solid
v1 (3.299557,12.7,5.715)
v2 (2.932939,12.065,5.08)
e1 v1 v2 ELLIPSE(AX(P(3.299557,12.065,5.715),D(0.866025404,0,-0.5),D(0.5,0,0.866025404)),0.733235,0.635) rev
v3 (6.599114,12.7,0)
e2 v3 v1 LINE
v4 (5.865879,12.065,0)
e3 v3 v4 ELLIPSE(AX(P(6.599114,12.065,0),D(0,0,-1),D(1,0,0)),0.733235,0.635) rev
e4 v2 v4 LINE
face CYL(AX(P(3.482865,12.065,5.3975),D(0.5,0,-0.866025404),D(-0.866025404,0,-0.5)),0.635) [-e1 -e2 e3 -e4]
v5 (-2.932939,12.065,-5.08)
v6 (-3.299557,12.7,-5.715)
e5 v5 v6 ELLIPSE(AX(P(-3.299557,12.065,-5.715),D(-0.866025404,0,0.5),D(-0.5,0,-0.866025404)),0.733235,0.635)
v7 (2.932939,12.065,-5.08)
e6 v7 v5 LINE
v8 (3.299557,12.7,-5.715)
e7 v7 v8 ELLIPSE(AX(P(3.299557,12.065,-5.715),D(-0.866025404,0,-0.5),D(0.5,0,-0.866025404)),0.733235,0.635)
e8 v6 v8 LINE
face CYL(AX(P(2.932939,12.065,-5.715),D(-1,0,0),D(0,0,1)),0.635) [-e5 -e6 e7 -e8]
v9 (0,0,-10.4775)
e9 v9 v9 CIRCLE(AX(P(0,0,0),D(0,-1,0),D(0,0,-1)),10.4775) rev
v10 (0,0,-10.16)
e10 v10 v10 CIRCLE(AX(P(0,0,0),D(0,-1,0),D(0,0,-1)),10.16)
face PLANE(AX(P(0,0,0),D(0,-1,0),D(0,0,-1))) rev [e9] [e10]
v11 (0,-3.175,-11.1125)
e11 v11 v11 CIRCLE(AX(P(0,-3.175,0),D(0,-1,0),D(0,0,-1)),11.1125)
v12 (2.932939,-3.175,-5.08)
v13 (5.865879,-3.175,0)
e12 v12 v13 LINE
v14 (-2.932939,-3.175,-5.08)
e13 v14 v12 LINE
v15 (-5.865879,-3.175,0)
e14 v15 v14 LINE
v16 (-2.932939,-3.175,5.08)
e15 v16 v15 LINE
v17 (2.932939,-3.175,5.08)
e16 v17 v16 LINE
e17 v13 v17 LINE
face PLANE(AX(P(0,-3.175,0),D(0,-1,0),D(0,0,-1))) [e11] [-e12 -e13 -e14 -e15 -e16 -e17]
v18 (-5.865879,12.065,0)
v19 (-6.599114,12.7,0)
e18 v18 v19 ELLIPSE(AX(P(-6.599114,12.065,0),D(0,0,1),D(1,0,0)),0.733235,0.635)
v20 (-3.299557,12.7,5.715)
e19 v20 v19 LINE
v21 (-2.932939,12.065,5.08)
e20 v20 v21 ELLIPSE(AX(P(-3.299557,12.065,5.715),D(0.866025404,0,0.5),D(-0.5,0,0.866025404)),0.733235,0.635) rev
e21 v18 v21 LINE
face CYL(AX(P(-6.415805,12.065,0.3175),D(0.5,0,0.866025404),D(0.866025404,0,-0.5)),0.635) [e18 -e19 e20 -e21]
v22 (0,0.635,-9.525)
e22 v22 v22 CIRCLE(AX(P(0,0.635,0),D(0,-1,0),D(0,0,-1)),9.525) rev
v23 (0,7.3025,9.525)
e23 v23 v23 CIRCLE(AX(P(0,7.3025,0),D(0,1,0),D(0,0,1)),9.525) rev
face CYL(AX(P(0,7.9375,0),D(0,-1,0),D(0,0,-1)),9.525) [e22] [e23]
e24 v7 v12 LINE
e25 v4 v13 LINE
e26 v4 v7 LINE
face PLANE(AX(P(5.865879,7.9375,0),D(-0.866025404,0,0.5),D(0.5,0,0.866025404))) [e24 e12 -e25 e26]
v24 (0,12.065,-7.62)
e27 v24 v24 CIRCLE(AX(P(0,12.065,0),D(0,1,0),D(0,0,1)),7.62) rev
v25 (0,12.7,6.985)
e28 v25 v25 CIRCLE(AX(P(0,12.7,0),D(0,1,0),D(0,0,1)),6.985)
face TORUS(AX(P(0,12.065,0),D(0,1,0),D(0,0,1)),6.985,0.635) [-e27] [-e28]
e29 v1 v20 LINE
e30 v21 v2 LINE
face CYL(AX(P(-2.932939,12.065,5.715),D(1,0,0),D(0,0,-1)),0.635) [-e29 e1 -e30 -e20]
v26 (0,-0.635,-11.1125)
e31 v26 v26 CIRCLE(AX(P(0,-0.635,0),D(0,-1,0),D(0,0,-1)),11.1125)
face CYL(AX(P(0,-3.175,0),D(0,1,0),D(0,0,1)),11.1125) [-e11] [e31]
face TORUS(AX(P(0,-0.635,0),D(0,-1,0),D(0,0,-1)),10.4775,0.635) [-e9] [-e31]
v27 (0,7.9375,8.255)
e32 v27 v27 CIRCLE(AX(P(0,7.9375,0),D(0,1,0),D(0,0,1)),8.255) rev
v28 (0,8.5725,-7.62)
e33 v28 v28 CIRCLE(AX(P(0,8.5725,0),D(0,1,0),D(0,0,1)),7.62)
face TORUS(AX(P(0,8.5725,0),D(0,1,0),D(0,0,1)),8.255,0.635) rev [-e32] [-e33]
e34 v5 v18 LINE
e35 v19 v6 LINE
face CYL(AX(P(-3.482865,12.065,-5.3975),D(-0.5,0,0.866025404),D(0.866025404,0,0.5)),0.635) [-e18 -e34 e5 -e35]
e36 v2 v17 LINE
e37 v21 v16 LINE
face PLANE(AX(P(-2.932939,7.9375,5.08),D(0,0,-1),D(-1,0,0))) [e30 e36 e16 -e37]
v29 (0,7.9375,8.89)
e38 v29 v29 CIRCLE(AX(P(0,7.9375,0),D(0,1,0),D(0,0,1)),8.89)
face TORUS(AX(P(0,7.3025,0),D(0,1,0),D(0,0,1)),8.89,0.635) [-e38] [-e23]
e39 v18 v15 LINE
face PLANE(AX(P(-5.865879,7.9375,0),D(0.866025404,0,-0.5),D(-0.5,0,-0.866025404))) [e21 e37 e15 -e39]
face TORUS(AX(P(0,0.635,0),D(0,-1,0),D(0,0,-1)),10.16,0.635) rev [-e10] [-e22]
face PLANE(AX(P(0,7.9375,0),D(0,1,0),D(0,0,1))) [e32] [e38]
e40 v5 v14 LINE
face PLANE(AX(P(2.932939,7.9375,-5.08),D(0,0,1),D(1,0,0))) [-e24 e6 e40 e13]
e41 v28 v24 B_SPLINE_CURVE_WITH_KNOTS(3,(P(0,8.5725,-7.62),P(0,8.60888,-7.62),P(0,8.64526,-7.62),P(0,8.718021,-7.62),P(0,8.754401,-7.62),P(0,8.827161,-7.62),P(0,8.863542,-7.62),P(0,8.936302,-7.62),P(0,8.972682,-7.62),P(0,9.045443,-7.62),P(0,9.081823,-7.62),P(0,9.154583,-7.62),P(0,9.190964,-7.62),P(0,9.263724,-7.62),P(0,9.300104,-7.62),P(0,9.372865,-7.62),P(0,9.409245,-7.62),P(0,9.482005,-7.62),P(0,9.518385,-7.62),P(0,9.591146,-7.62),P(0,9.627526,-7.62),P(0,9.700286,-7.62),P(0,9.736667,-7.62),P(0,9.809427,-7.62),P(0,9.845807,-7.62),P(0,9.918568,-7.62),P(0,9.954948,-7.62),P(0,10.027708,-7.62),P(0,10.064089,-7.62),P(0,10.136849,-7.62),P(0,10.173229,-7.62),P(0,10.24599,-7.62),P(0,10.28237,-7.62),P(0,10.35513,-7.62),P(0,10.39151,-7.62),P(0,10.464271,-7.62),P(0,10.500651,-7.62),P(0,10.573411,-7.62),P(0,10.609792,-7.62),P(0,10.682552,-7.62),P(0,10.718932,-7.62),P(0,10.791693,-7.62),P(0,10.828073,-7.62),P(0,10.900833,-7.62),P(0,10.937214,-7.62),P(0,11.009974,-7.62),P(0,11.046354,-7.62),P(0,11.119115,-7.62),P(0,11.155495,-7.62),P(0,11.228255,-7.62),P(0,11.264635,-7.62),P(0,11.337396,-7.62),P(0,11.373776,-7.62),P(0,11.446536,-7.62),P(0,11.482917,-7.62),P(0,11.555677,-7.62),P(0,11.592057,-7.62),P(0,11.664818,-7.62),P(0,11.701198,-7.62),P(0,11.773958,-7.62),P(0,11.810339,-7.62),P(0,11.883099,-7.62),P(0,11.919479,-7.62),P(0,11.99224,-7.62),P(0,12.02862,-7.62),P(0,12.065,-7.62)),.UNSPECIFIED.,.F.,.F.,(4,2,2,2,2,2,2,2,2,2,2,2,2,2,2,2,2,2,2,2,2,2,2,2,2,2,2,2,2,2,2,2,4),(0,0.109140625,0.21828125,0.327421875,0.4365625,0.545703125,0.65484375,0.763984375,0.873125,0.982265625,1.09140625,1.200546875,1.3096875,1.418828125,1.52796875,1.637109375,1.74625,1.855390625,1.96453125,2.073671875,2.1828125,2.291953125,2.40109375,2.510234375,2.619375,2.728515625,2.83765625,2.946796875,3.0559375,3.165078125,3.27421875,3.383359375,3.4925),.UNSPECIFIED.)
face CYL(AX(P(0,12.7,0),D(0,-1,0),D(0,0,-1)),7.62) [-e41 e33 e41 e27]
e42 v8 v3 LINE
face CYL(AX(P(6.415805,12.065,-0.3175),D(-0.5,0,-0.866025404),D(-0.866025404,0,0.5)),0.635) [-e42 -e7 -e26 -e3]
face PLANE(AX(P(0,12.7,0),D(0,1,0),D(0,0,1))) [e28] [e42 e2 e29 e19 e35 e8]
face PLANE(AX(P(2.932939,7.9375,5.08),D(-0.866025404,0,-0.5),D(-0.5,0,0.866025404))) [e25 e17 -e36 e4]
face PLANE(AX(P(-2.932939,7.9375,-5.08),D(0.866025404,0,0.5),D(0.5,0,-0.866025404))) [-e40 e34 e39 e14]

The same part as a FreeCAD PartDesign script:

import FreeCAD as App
import Part
import Sketcher
Q = App.Units.Quantity


def edges_at(feature, points):
    """Names of the edges that pass closest to the given points."""
    edges = feature.Shape.Edges
    near = lambda p: min(range(len(edges)), key=lambda i: edges[i].distToShape(Part.Vertex(*p))[0])
    return sorted({f"Edge{near(p) + 1}" for p in points})


def add_polygon(sketch, points):
    """Adds a closed chain of lines whose ends are joined by coincident constraints."""
    first, n = sketch.GeometryCount, len(points)
    for a, b in zip(points, points[1:] + points[:1]):
        sketch.addGeometry(Part.LineSegment(App.Vector(*a, 0), App.Vector(*b, 0)), False)
    for i in range(n):
        sketch.addConstraint(Sketcher.Constraint("Coincident", first + i, 2, first + (i + 1) % n, 1))

doc = App.newDocument("Part")
body = doc.addObject("PartDesign::Body", "Body")

sketch1 = body.newObject("Sketcher::SketchObject", "Sketch")
sketch1.AttachmentSupport = (doc.getObject("XZ_Plane"), [""])
sketch1.MapMode = "FlatFace"
sketch1.addGeometry(Part.Circle(App.Vector(0, 0, 0), App.Vector(0, 0, 1), 10), False)
add_polygon(sketch1, [(3, -5), (6, 0), (3, 5), (-3, 5), (-6, 0), (-3, -5)])
sketch1.addConstraint([
    Sketcher.Constraint("Horizontal", 3),
    Sketcher.Constraint("Horizontal", 6),
    Sketcher.Constraint("Coincident", 0, 3, -1, 1),
    Sketcher.Constraint("Symmetric", 1, 2, 4, 2, -1, 1),
    Sketcher.Constraint("Symmetric", 2, 2, 5, 2, -1, 1),
    Sketcher.Constraint("PointOnObject", 1, 2, -1),
    Sketcher.Constraint("Parallel", 1, 4),
    Sketcher.Constraint("Vertical", 3, 2, 5, 2),
    Sketcher.Constraint("Diameter", 0, Q("0.75 in")),
    Sketcher.Constraint("Angle", 1, Q("60 deg")),
    Sketcher.Constraint("DistanceY", -1, 1, 2, 2, Q("0.2 in")),
    Sketcher.Constraint("DistanceX", 3, 2, 3, 1, 5.865879),
])
pad1 = body.newObject("PartDesign::Pad", "Pad")
pad1.Profile = sketch1
pad1.Length = Q("0.3125 in")
pad1.Reversed = True

sketch2 = body.newObject("Sketcher::SketchObject", "Sketch001")
sketch2.AttachmentSupport = (doc.getObject("XZ_Plane"), [""])
sketch2.MapMode = "FlatFace"
sketch2.AttachmentOffset = App.Placement(App.Vector(0, 0, -0.3125 * 25.4), App.Rotation())
sketch2.addGeometry(Part.Circle(App.Vector(0, 0, 0), App.Vector(0, 0, 1), 8), False)
add_polygon(sketch2, [(-6, 0), (-3, -5), (3, -5), (6, 0), (3, 5), (-3, 5)])
sketch2.addConstraint([
    Sketcher.Constraint("Horizontal", 2),
    Sketcher.Constraint("Horizontal", 5),
    Sketcher.Constraint("Coincident", 0, 3, -1, 1),
    Sketcher.Constraint("Symmetric", 1, 2, 4, 2, -1, 1),
    Sketcher.Constraint("Symmetric", 3, 2, 6, 2, -1, 1),
    Sketcher.Constraint("PointOnObject", 3, 2, -1),
    Sketcher.Constraint("Parallel", 3, 6),
    Sketcher.Constraint("Vertical", 2, 2, 4, 2),
    Sketcher.Constraint("Diameter", 0, Q("0.6 in")),
    Sketcher.Constraint("Angle", 1, Q("-60 deg")),
    Sketcher.Constraint("DistanceY", 1, 2, -1, 1, Q("0.2 in")),
    Sketcher.Constraint("DistanceX", 2, 1, 2, 2, 5.865879),
])
pad2 = body.newObject("PartDesign::Pad", "Pad001")
pad2.Profile = sketch2
pad2.Length = Q("0.1875 in")
pad2.Reversed = True

sketch3 = body.newObject("Sketcher::SketchObject", "Sketch002")
sketch3.AttachmentSupport = (doc.getObject("XZ_Plane"), [""])
sketch3.MapMode = "FlatFace"
sketch3.addGeometry(Part.Circle(App.Vector(0, 0, 0), App.Vector(0, 0, 1), 11), False)
add_polygon(sketch3, [(-6, 0), (-3, 5), (3, 5), (6, 0), (3, -5), (-3, -5)])
sketch3.addConstraint([
    Sketcher.Constraint("Horizontal", 2),
    Sketcher.Constraint("Horizontal", 5),
    Sketcher.Constraint("Coincident", 0, 3, -1, 1),
    Sketcher.Constraint("Symmetric", 1, 2, 4, 2, -1, 1),
    Sketcher.Constraint("Symmetric", 3, 2, 6, 2, -1, 1),
    Sketcher.Constraint("PointOnObject", 3, 2, -1),
    Sketcher.Constraint("Parallel", 3, 6),
    Sketcher.Constraint("Vertical", 2, 2, 4, 2),
    Sketcher.Constraint("Diameter", 0, Q("0.875 in")),
    Sketcher.Constraint("Angle", 1, Q("60 deg")),
    Sketcher.Constraint("DistanceY", -1, 1, 1, 2, Q("0.2 in")),
    Sketcher.Constraint("DistanceX", 2, 1, 2, 2, 5.865879),
])
pad3 = body.newObject("PartDesign::Pad", "Pad002")
pad3.Profile = sketch3
pad3.Length = Q("0.125 in")
doc.recompute()

fillet = body.newObject("PartDesign::Fillet", "Fillet")
fillet.Base = (pad3, edges_at(pad3, [(0, 0, -9.525), (0, 0, 11.113)]))
fillet.Radius = Q("0.025 in")
doc.recompute()

fillet2 = body.newObject("PartDesign::Fillet", "Fillet001")
fillet2.Base = (fillet, edges_at(fillet, [
    (0, 12.7, -5.08),
    (-4.399, 12.7, -2.54),
    (-4.399, 12.7, 2.54),
    (0, 12.7, 5.08),
    (4.399, 12.7, 2.54),
    (4.399, 12.7, -2.54),
]))
fillet2.Radius = Q("0.025 in")
doc.recompute()

fillet3 = body.newObject("PartDesign::Fillet", "Fillet002")
fillet3.Base = (fillet2, edges_at(fillet2, [(0, 12.7, 7.62), (0, 7.938, 7.62), (0, 7.938, -9.525)]))
fillet3.Radius = Q("0.025 in")

doc.recompute()
